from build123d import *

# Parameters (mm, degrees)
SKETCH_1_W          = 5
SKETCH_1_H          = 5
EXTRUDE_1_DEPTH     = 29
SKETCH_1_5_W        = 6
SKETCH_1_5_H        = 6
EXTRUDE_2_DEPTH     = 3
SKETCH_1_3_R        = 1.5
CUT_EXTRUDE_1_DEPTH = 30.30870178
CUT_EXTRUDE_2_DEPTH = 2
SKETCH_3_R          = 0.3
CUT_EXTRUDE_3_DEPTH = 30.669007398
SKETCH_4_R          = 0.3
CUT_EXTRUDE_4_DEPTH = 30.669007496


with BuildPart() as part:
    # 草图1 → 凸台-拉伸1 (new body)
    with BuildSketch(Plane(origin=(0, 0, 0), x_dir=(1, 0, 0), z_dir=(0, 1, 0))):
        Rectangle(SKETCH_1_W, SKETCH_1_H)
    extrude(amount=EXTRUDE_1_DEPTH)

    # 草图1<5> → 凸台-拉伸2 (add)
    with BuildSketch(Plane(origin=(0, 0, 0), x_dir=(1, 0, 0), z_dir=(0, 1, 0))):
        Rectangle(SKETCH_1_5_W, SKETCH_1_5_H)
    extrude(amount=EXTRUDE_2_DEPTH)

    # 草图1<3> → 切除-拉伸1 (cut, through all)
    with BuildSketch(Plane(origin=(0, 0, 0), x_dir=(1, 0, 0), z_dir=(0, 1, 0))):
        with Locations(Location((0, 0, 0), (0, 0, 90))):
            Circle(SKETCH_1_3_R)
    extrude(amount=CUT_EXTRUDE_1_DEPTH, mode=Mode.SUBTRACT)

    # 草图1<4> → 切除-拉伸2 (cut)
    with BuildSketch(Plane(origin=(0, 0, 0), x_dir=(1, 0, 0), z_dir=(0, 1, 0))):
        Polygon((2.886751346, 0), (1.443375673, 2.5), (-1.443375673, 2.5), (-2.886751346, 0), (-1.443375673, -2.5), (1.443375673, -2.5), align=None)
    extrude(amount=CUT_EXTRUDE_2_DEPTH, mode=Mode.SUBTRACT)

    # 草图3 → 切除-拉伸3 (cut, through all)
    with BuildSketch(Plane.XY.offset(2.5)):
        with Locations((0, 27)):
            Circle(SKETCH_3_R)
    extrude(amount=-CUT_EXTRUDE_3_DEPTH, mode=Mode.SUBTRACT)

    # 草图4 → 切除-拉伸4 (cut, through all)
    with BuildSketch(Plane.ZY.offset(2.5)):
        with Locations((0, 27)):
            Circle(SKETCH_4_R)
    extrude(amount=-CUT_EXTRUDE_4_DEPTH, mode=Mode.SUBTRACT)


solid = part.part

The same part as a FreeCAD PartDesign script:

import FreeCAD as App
import Part
import Sketcher
Q = App.Units.Quantity

doc = App.newDocument("Part")
body = doc.addObject("PartDesign::Body", "Body")

# Sketch on XZ plane
sketch1 = doc.addObject("Sketcher::SketchObject", "Sketch")
body.addObject(sketch1)
sketch1.AttachmentSupport = (doc.XZ_Plane, [""])
sketch1.MapMode = "FlatFace"
sketch1.addGeometry(Part.LineSegment(App.Vector(-2.5, -2.5, 0), App.Vector(-2.5, 2.5, 0)), False)
sketch1.addGeometry(Part.LineSegment(App.Vector(-2.5, 2.5, 0), App.Vector(2.5, 2.5, 0)), False)
sketch1.addGeometry(Part.LineSegment(App.Vector(2.5, 2.5, 0), App.Vector(2.5, -2.5, 0)), False)
sketch1.addGeometry(Part.LineSegment(App.Vector(2.5, -2.5, 0), App.Vector(-2.5, -2.5, 0)), False)
sketch1.addConstraint(Sketcher.Constraint("Coincident", 0, 2, 1, 1))
sketch1.addConstraint(Sketcher.Constraint("Coincident", 1, 2, 2, 1))
sketch1.addConstraint(Sketcher.Constraint("Coincident", 2, 2, 3, 1))
sketch1.addConstraint(Sketcher.Constraint("Coincident", 3, 2, 0, 1))
sketch1.addConstraint(Sketcher.Constraint("Vertical", 0))
sketch1.addConstraint(Sketcher.Constraint("Horizontal", 1))
sketch1.addConstraint(Sketcher.Constraint("Vertical", 2))
sketch1.addConstraint(Sketcher.Constraint("Horizontal", 3))
sketch1.addConstraint(Sketcher.Constraint("Symmetric", 0, 2, 2, 2, -1, 1))
sketch1.addConstraint(Sketcher.Constraint("Equal", 3, 0))
sketch1.addConstraint(Sketcher.Constraint("DistanceX", 1, 1, 1, 2, 5.0))
pad1 = doc.addObject("PartDesign::Pad", "Pad")
body.addObject(pad1)
pad1.Profile = sketch1
pad1.Length = 29
pad1.Reversed = True

# Sketch on XZ plane
sketch2 = doc.addObject("Sketcher::SketchObject", "Sketch001")
body.addObject(sketch2)
sketch2.AttachmentSupport = (doc.XZ_Plane, [""])
sketch2.MapMode = "FlatFace"
sketch2.addGeometry(Part.LineSegment(App.Vector(-3, -3, 0), App.Vector(-3, 3, 0)), False)
sketch2.addGeometry(Part.LineSegment(App.Vector(-3, 3, 0), App.Vector(3, 3, 0)), False)
sketch2.addGeometry(Part.LineSegment(App.Vector(3, 3, 0), App.Vector(3, -3, 0)), False)
sketch2.addGeometry(Part.LineSegment(App.Vector(3, -3, 0), App.Vector(-3, -3, 0)), False)
sketch2.addConstraint(Sketcher.Constraint("Coincident", 0, 2, 1, 1))
sketch2.addConstraint(Sketcher.Constraint("Coincident", 1, 2, 2, 1))
sketch2.addConstraint(Sketcher.Constraint("Coincident", 2, 2, 3, 1))
sketch2.addConstraint(Sketcher.Constraint("Coincident", 3, 2, 0, 1))
sketch2.addConstraint(Sketcher.Constraint("Vertical", 0))
sketch2.addConstraint(Sketcher.Constraint("Horizontal", 1))
sketch2.addConstraint(Sketcher.Constraint("Vertical", 2))
sketch2.addConstraint(Sketcher.Constraint("Horizontal", 3))
sketch2.addConstraint(Sketcher.Constraint("Symmetric", 0, 2, 2, 2, -1, 1))
sketch2.addConstraint(Sketcher.Constraint("Equal", 3, 0))
sketch2.addConstraint(Sketcher.Constraint("DistanceX", 1, 1, 1, 2, 6.0))
pad2 = doc.addObject("PartDesign::Pad", "Pad001")
body.addObject(pad2)
pad2.Profile = sketch2
pad2.Length = 3
pad2.Reversed = True

# Sketch on XZ plane
sketch3 = doc.addObject("Sketcher::SketchObject", "Sketch002")
body.addObject(sketch3)
sketch3.AttachmentSupport = (doc.XZ_Plane, [""])
sketch3.MapMode = "FlatFace"
sketch3.addGeometry(Part.Circle(App.Vector(0, 0, 0), App.Vector(0, 0, 1), 1.5), False)
sketch3.addConstraint(Sketcher.Constraint("Coincident", 0, 3, -1, 1))
sketch3.addConstraint(Sketcher.Constraint("Diameter", 0, 3.0))
pocket1 = doc.addObject("PartDesign::Pocket", "Pocket")
body.addObject(pocket1)
pocket1.Profile = sketch3
pocket1.Type = "ThroughAll"

# Sketch on XZ plane
sketch4 = doc.addObject("Sketcher::SketchObject", "Sketch003")
body.addObject(sketch4)
sketch4.AttachmentSupport = (doc.XZ_Plane, [""])
sketch4.MapMode = "FlatFace"
sketch4.addGeometry(Part.LineSegment(App.Vector(2.886751, 0, 0), App.Vector(1.443376, -2.5, 0)), False)
sketch4.addGeometry(Part.LineSegment(App.Vector(1.443376, -2.5, 0), App.Vector(-1.443376, -2.5, 0)), False)
sketch4.addGeometry(Part.LineSegment(App.Vector(-1.443376, -2.5, 0), App.Vector(-2.886751, 0, 0)), False)
sketch4.addGeometry(Part.LineSegment(App.Vector(-2.886751, 0, 0), App.Vector(-1.443376, 2.5, 0)), False)
sketch4.addGeometry(Part.LineSegment(App.Vector(-1.443376, 2.5, 0), App.Vector(1.443376, 2.5, 0)), False)
sketch4.addGeometry(Part.LineSegment(App.Vector(1.443376, 2.5, 0), App.Vector(2.886751, 0, 0)), False)
sketch4.addConstraint(Sketcher.Constraint("Coincident", 0, 2, 1, 1))
sketch4.addConstraint(Sketcher.Constraint("Coincident", 1, 2, 2, 1))
sketch4.addConstraint(Sketcher.Constraint("Coincident", 2, 2, 3, 1))
sketch4.addConstraint(Sketcher.Constraint("Coincident", 3, 2, 4, 1))
sketch4.addConstraint(Sketcher.Constraint("Coincident", 4, 2, 5, 1))
sketch4.addConstraint(Sketcher.Constraint("Coincident", 5, 2, 0, 1))
sketch4.addConstraint(Sketcher.Constraint("Horizontal", 1))
sketch4.addConstraint(Sketcher.Constraint("Horizontal", 4))
sketch4.addConstraint(Sketcher.Constraint("Symmetric", 0, 2, 3, 2, -1, 1))
sketch4.addConstraint(Sketcher.Constraint("Symmetric", 2, 2, 5, 2, -1, 1))
sketch4.addConstraint(Sketcher.Constraint("PointOnObject", 2, 2, -1))
sketch4.addConstraint(Sketcher.Constraint("Parallel", 2, 5))
sketch4.addConstraint(Sketcher.Constraint("Vertical", 1, 2, 3, 2))
sketch4.addConstraint(Sketcher.Constraint("Angle", 0, Q("-120 deg")))
sketch4.addConstraint(Sketcher.Constraint("DistanceY", 1, 2, 3, 2, 5.0))
sketch4.addConstraint(Sketcher.Constraint("DistanceX", 1, 2, 1, 1, 2.886751))
pocket2 = doc.addObject("PartDesign::Pocket", "Pocket001")
body.addObject(pocket2)
pocket2.Profile = sketch4
pocket2.Length = 2

# Sketch on XY plane
sketch5 = doc.addObject("Sketcher::SketchObject", "Sketch004")
body.addObject(sketch5)
sketch5.AttachmentSupport = (doc.XY_Plane, [""])
sketch5.MapMode = "FlatFace"
sketch5.AttachmentOffset = App.Placement(App.Vector(0, 0, 2.5), App.Rotation())
sketch5.addGeometry(Part.Circle(App.Vector(0, 27, 0), App.Vector(0, 0, 1), 0.3), False)
sketch5.addConstraint(Sketcher.Constraint("PointOnObject", 0, 3, -2))
sketch5.addConstraint(Sketcher.Constraint("Diameter", 0, 0.6))
sketch5.addConstraint(Sketcher.Constraint("DistanceY", -1, 1, 0, 3, 27.0))
pocket3 = doc.addObject("PartDesign::Pocket", "Pocket002")
body.addObject(pocket3)
pocket3.Profile = sketch5
pocket3.Type = "ThroughAll"

# Sketch on YZ plane
sketch6 = doc.addObject("Sketcher::SketchObject", "Sketch005")
body.addObject(sketch6)
sketch6.AttachmentSupport = (doc.YZ_Plane, [""])
sketch6.MapMode = "FlatFace"
sketch6.AttachmentOffset = App.Placement(App.Vector(0, 0, -2.5), App.Rotation())
sketch6.addGeometry(Part.Circle(App.Vector(27, 0, 0), App.Vector(0, 0, 1), 0.3), False)
sketch6.addConstraint(Sketcher.Constraint("PointOnObject", 0, 3, -1))
sketch6.addConstraint(Sketcher.Constraint("Diameter", 0, 0.6))
sketch6.addConstraint(Sketcher.Constraint("DistanceX", -1, 1, 0, 3, 27.0))
pocket4 = doc.addObject("PartDesign::Pocket", "Pocket003")
body.addObject(pocket4)
pocket4.Profile = sketch6
pocket4.Type = "ThroughAll"
pocket4.Reversed = True

doc.recompute()
